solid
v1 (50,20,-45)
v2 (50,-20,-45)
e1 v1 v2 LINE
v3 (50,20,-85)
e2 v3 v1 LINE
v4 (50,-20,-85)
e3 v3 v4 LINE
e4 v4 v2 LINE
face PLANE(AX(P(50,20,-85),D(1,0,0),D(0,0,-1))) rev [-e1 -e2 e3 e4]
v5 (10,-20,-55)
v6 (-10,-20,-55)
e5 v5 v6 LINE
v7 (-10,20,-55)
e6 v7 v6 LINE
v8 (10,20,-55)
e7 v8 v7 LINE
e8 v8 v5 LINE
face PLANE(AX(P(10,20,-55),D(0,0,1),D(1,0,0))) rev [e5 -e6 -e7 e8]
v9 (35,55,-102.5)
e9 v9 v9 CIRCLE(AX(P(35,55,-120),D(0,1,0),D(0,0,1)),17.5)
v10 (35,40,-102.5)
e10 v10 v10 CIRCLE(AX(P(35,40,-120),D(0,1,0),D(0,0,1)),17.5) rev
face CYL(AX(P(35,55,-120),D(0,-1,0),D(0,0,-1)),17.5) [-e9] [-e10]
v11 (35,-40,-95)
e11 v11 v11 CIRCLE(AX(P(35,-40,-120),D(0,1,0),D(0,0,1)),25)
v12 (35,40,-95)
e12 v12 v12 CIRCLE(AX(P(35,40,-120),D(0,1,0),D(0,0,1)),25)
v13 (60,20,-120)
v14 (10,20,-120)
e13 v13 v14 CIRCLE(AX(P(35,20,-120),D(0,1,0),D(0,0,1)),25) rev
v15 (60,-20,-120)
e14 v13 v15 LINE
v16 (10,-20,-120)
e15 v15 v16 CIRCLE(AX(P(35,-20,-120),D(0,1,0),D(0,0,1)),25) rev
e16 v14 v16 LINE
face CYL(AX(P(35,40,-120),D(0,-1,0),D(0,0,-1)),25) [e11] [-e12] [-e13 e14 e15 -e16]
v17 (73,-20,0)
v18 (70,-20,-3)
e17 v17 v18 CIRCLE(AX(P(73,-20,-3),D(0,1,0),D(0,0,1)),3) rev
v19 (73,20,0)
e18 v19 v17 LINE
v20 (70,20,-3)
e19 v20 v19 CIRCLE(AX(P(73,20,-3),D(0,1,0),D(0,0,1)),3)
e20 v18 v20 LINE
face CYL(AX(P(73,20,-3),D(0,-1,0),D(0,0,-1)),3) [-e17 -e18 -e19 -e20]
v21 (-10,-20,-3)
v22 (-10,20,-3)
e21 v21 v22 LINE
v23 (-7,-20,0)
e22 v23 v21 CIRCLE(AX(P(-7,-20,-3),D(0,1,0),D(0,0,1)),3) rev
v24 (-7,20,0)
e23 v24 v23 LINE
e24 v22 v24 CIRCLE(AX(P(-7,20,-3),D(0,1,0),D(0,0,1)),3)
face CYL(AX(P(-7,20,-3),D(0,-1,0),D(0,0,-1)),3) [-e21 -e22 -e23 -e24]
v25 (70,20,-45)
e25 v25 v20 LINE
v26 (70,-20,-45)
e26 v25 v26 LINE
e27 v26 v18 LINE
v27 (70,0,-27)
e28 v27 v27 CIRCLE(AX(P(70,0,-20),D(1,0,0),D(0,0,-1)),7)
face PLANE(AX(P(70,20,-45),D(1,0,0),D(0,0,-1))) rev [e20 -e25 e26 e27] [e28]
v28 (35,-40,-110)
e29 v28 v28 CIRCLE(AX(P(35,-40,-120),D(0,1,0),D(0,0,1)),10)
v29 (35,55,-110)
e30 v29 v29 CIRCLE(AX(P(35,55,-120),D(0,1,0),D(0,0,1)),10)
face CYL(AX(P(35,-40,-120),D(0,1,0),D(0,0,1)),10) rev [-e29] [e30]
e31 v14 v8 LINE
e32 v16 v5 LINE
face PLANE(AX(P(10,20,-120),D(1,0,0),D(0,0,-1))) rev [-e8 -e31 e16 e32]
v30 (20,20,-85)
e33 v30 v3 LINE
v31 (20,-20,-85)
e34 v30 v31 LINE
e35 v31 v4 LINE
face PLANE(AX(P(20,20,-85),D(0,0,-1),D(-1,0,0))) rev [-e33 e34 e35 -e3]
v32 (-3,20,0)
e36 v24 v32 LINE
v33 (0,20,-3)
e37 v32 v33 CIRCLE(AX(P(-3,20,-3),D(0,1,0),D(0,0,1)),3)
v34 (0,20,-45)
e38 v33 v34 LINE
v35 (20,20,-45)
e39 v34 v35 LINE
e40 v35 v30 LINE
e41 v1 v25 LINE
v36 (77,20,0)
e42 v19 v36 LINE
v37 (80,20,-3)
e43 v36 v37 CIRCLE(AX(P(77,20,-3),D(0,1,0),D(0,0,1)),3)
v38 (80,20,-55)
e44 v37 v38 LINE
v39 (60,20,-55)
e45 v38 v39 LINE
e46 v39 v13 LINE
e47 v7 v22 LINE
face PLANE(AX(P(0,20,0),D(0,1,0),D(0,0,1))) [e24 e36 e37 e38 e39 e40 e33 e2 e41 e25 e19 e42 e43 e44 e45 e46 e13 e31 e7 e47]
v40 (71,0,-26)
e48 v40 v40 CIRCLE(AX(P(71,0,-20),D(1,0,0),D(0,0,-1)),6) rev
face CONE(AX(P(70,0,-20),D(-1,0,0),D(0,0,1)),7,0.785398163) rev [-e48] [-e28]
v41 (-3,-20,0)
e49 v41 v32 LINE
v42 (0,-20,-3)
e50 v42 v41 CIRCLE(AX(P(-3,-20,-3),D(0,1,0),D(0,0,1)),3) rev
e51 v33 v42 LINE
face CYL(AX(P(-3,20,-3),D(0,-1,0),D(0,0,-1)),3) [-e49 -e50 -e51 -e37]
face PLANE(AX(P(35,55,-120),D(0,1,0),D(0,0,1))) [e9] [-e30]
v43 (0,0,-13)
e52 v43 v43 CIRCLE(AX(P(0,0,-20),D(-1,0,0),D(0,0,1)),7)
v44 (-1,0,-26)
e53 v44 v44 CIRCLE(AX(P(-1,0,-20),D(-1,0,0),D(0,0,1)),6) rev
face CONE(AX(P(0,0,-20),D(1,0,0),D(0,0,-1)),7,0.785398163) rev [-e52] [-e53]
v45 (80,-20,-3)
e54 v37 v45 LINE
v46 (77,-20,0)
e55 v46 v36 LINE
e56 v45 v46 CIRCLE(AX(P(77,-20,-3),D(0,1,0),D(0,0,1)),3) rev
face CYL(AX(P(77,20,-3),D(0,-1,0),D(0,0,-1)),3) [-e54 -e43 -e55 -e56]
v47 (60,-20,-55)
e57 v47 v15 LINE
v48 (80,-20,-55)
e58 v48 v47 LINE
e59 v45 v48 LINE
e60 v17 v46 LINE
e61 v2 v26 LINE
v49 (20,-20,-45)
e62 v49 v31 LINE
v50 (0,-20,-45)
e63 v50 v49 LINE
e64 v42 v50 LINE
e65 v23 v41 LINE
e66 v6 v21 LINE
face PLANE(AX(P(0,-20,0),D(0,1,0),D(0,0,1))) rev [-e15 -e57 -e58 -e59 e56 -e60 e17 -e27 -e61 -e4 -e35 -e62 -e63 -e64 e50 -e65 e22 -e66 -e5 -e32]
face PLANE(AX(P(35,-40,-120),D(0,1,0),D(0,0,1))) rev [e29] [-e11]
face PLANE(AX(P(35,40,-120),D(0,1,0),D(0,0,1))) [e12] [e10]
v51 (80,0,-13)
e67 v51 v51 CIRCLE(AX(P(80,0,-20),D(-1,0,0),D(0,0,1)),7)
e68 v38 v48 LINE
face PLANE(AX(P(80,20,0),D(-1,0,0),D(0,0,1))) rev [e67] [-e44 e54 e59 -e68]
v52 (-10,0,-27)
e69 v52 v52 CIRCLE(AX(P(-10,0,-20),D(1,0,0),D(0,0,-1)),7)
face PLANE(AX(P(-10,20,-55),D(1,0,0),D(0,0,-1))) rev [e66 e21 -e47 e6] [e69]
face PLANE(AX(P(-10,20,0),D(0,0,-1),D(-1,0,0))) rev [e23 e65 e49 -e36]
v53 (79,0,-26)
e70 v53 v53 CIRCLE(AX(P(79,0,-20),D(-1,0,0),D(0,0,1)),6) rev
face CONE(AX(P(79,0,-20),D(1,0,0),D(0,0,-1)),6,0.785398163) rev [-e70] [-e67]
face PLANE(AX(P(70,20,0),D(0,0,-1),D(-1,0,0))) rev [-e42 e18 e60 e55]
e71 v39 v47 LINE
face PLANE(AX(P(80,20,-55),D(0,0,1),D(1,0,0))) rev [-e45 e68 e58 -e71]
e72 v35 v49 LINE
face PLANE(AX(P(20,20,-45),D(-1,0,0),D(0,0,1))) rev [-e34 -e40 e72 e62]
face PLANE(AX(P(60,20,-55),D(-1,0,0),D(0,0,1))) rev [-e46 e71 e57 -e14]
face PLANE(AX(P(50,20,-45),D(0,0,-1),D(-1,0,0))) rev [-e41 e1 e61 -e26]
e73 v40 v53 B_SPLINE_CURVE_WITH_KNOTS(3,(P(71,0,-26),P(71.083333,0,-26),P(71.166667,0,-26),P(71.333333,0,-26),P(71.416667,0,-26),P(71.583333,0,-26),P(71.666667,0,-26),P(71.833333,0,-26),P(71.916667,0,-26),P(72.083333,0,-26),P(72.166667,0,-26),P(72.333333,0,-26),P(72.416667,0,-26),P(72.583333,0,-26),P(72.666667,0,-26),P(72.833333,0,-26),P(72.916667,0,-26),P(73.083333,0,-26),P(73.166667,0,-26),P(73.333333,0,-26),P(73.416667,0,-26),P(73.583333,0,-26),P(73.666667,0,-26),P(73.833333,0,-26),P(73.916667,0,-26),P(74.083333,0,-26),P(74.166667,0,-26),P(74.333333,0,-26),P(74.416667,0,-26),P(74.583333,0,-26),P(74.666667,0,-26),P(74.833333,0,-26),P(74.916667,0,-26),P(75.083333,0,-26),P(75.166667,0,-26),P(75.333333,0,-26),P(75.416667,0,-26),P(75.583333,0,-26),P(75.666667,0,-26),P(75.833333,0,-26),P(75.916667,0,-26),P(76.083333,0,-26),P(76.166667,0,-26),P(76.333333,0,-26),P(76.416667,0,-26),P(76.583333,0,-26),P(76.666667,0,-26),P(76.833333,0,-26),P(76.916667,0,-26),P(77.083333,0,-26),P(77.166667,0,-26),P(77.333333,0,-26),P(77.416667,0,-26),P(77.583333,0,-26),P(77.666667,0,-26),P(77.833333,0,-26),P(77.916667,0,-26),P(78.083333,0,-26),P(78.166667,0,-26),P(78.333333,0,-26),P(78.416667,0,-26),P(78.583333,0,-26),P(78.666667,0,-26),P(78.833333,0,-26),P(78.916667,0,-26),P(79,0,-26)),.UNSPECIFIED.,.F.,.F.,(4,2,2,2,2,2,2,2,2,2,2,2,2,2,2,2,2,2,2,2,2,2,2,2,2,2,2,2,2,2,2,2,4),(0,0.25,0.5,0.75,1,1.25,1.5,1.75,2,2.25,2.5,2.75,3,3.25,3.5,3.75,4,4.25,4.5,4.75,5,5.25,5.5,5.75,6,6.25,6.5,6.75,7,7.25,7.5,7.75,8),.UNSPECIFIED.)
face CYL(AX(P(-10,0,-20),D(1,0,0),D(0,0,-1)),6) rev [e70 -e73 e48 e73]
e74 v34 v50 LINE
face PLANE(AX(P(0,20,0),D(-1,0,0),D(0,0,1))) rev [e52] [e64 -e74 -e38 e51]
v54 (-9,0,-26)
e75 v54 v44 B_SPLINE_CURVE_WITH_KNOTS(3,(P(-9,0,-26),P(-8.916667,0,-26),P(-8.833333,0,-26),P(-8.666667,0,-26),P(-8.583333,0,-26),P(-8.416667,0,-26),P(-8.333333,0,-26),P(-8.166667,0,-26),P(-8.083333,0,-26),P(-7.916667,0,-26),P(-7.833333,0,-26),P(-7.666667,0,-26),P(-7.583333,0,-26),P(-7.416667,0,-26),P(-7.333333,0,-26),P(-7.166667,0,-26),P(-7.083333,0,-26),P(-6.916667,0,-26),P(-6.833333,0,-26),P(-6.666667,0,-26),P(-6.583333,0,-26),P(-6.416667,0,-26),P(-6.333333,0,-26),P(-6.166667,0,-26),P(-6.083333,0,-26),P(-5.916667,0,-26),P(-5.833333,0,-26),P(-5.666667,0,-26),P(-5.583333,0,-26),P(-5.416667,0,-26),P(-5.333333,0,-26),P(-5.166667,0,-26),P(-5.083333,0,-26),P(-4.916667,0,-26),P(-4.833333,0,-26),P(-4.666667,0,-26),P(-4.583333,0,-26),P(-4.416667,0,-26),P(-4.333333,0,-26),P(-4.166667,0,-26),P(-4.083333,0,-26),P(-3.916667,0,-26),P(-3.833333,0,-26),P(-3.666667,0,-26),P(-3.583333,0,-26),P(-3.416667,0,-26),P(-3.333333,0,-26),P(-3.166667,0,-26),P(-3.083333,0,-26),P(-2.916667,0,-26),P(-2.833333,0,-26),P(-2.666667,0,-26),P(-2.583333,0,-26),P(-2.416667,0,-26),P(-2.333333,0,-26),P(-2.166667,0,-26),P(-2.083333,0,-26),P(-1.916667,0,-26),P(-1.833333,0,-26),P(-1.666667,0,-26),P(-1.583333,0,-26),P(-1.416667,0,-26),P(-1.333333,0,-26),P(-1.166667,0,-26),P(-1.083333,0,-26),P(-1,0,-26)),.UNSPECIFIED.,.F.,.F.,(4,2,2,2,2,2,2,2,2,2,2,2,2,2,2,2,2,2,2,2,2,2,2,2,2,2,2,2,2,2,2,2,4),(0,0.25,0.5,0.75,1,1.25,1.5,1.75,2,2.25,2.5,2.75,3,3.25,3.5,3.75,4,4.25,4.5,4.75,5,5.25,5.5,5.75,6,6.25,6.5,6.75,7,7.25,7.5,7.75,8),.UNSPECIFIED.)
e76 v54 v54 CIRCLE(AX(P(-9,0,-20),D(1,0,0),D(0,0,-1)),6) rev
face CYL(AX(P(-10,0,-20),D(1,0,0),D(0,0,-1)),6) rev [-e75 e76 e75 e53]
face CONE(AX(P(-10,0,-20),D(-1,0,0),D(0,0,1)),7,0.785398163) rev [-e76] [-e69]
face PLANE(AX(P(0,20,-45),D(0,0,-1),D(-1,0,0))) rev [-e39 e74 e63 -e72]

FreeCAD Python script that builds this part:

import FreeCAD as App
import Part
import Sketcher


def edges_at(feature, points):
    """Names of the edges that pass closest to the given points."""
    edges = feature.Shape.Edges
    near = lambda p: min(range(len(edges)), key=lambda i: edges[i].distToShape(Part.Vertex(*p))[0])
    return sorted({f"Edge{near(p) + 1}" for p in points})

doc = App.newDocument("Part")
body = doc.addObject("PartDesign::Body", "Body")

# Sketch on XZ plane
sketch1 = doc.addObject("Sketcher::SketchObject", "Sketch")
body.addObject(sketch1)
sketch1.AttachmentSupport = (doc.XZ_Plane, [""])
sketch1.MapMode = "FlatFace"
sketch1.addGeometry(Part.LineSegment(App.Vector(0, 0, 0), App.Vector(0, -45, 0)), False)
sketch1.addGeometry(Part.LineSegment(App.Vector(0, -45, 0), App.Vector(20, -45, 0)), False)
sketch1.addGeometry(Part.LineSegment(App.Vector(20, -45, 0), App.Vector(20, -85, 0)), False)
sketch1.addGeometry(Part.LineSegment(App.Vector(20, -85, 0), App.Vector(50, -85, 0)), False)
sketch1.addGeometry(Part.LineSegment(App.Vector(50, -85, 0), App.Vector(50, -45, 0)), False)
sketch1.addGeometry(Part.LineSegment(App.Vector(50, -45, 0), App.Vector(70, -45, 0)), False)
sketch1.addGeometry(Part.LineSegment(App.Vector(70, -45, 0), App.Vector(70, 0, 0)), False)
sketch1.addGeometry(Part.LineSegment(App.Vector(70, 0, 0), App.Vector(80, 0, 0)), False)
sketch1.addGeometry(Part.LineSegment(App.Vector(80, 0, 0), App.Vector(80, -55, 0)), False)
sketch1.addGeometry(Part.LineSegment(App.Vector(80, -55, 0), App.Vector(60, -55, 0)), False)
sketch1.addGeometry(Part.LineSegment(App.Vector(60, -55, 0), App.Vector(60, -120, 0)), False)
sketch1.addGeometry(Part.LineSegment(App.Vector(60, -120, 0), App.Vector(10, -120, 0)), False)
sketch1.addGeometry(Part.LineSegment(App.Vector(10, -120, 0), App.Vector(10, -55, 0)), False)
sketch1.addGeometry(Part.LineSegment(App.Vector(10, -55, 0), App.Vector(-10, -55, 0)), False)
sketch1.addGeometry(Part.LineSegment(App.Vector(-10, -55, 0), App.Vector(-10, 0, 0)), False)
sketch1.addGeometry(Part.LineSegment(App.Vector(-10, 0, 0), App.Vector(0, 0, 0)), False)
sketch1.addConstraint(Sketcher.Constraint("Coincident", 0, 2, 1, 1))
sketch1.addConstraint(Sketcher.Constraint("Coincident", 1, 2, 2, 1))
sketch1.addConstraint(Sketcher.Constraint("Coincident", 2, 2, 3, 1))
sketch1.addConstraint(Sketcher.Constraint("Coincident", 3, 2, 4, 1))
sketch1.addConstraint(Sketcher.Constraint("Coincident", 4, 2, 5, 1))
sketch1.addConstraint(Sketcher.Constraint("Coincident", 5, 2, 6, 1))
sketch1.addConstraint(Sketcher.Constraint("Coincident", 6, 2, 7, 1))
sketch1.addConstraint(Sketcher.Constraint("Coincident", 7, 2, 8, 1))
sketch1.addConstraint(Sketcher.Constraint("Coincident", 8, 2, 9, 1))
sketch1.addConstraint(Sketcher.Constraint("Coincident", 9, 2, 10, 1))
sketch1.addConstraint(Sketcher.Constraint("Coincident", 10, 2, 11, 1))
sketch1.addConstraint(Sketcher.Constraint("Coincident", 11, 2, 12, 1))
sketch1.addConstraint(Sketcher.Constraint("Coincident", 12, 2, 13, 1))
sketch1.addConstraint(Sketcher.Constraint("Coincident", 13, 2, 14, 1))
sketch1.addConstraint(Sketcher.Constraint("Coincident", 14, 2, 15, 1))
sketch1.addConstraint(Sketcher.Constraint("Coincident", 15, 2, 0, 1))
sketch1.addConstraint(Sketcher.Constraint("Vertical", 0))
sketch1.addConstraint(Sketcher.Constraint("Horizontal", 1))
sketch1.addConstraint(Sketcher.Constraint("Vertical", 2))
sketch1.addConstraint(Sketcher.Constraint("Horizontal", 3))
sketch1.addConstraint(Sketcher.Constraint("Vertical", 4))
sketch1.addConstraint(Sketcher.Constraint("Horizontal", 5))
sketch1.addConstraint(Sketcher.Constraint("Vertical", 6))
sketch1.addConstraint(Sketcher.Constraint("Horizontal", 7))
sketch1.addConstraint(Sketcher.Constraint("Vertical", 8))
sketch1.addConstraint(Sketcher.Constraint("Horizontal", 9))
sketch1.addConstraint(Sketcher.Constraint("Vertical", 10))
sketch1.addConstraint(Sketcher.Constraint("Horizontal", 11))
sketch1.addConstraint(Sketcher.Constraint("Vertical", 12))
sketch1.addConstraint(Sketcher.Constraint("Horizontal", 13))
sketch1.addConstraint(Sketcher.Constraint("Vertical", 14))
sketch1.addConstraint(Sketcher.Constraint("Horizontal", 15))
sketch1.addConstraint(Sketcher.Constraint("Coincident", 15, 2, -1, 1))
sketch1.addConstraint(Sketcher.Constraint("PointOnObject", 6, 2, -1))
sketch1.addConstraint(Sketcher.Constraint("Horizontal", 1, 2, 4, 2))
sketch1.addConstraint(Sketcher.Constraint("Horizontal", 9, 2, 12, 2))
sketch1.addConstraint(Sketcher.Constraint("Equal", 1, 5))
sketch1.addConstraint(Sketcher.Constraint("Equal", 5, 9))
sketch1.addConstraint(Sketcher.Constraint("Equal", 9, 13))
sketch1.addConstraint(Sketcher.Constraint("Equal", 7, 15))
sketch1.addConstraint(Sketcher.Constraint("DistanceX", 1, 1, 1, 2, 20.0))
sketch1.addConstraint(Sketcher.Constraint("DistanceX", 3, 1, 3, 2, 30.0))
sketch1.addConstraint(Sketcher.Constraint("DistanceX", 7, 1, 7, 2, 10.0))
sketch1.addConstraint(Sketcher.Constraint("DistanceY", 0, 2, 0, 1, 45.0))
sketch1.addConstraint(Sketcher.Constraint("DistanceY", 2, 2, 2, 1, 40.0))
sketch1.addConstraint(Sketcher.Constraint("DistanceY", 8, 2, 8, 1, 55.0))
sketch1.addConstraint(Sketcher.Constraint("DistanceY", 10, 2, 10, 1, 65.0))
pad1 = doc.addObject("PartDesign::Pad", "Pad")
body.addObject(pad1)
pad1.Profile = sketch1
pad1.Length = 40
pad1.Midplane = True
doc.recompute()

fillet = doc.addObject("PartDesign::Fillet", "Fillet")
body.addObject(fillet)
fillet.Base = (pad1, edges_at(pad1, [
    (-10, 0, 0),
    (80, 0, 0),
    (70, 0, 0),
    (0, 0, 0),
]))
fillet.Radius = 3

# Sketch on YZ plane
sketch2 = doc.addObject("Sketcher::SketchObject", "Sketch001")
body.addObject(sketch2)
sketch2.AttachmentSupport = (doc.YZ_Plane, [""])
sketch2.MapMode = "FlatFace"
sketch2.AttachmentOffset = App.Placement(App.Vector(0, 0, 80), App.Rotation())
sketch2.addGeometry(Part.Circle(App.Vector(0, -20, 0), App.Vector(0, 0, 1), 6), False)
sketch2.addConstraint(Sketcher.Constraint("PointOnObject", 0, 3, -2))
sketch2.addConstraint(Sketcher.Constraint("Diameter", 0, 12.0))
sketch2.addConstraint(Sketcher.Constraint("DistanceY", 0, 3, -1, 1, 20.0))
pocket1 = doc.addObject("PartDesign::Pocket", "Pocket")
body.addObject(pocket1)
pocket1.Profile = sketch2
pocket1.Type = "ThroughAll"

# Sketch on XZ plane
sketch3 = doc.addObject("Sketcher::SketchObject", "Sketch002")
body.addObject(sketch3)
sketch3.AttachmentSupport = (doc.XZ_Plane, [""])
sketch3.MapMode = "FlatFace"
sketch3.addGeometry(Part.Circle(App.Vector(35, -120, 0), App.Vector(0, 0, 1), 25), False)
sketch3.addConstraint(Sketcher.Constraint("Diameter", 0, 50.0))
sketch3.addConstraint(Sketcher.Constraint("DistanceX", -1, 1, 0, 3, 35.0))
sketch3.addConstraint(Sketcher.Constraint("DistanceY", 0, 3, -1, 1, 120.0))
pad2 = doc.addObject("PartDesign::Pad", "Pad001")
body.addObject(pad2)
pad2.Profile = sketch3
pad2.Length = 80
pad2.Midplane = True

# Sketch on XZ plane
sketch4 = doc.addObject("Sketcher::SketchObject", "Sketch003")
body.addObject(sketch4)
sketch4.AttachmentSupport = (doc.XZ_Plane, [""])
sketch4.MapMode = "FlatFace"
sketch4.AttachmentOffset = App.Placement(App.Vector(0, 0, -40), App.Rotation())
sketch4.addGeometry(Part.Circle(App.Vector(35, -120, 0), App.Vector(0, 0, 1), 18), False)
sketch4.addConstraint(Sketcher.Constraint("Diameter", 0, 35.0))
sketch4.addConstraint(Sketcher.Constraint("DistanceX", -1, 1, 0, 3, 35.0))
sketch4.addConstraint(Sketcher.Constraint("DistanceY", 0, 3, -1, 1, 120.0))
pad3 = doc.addObject("PartDesign::Pad", "Pad002")
body.addObject(pad3)
pad3.Profile = sketch4
pad3.Length = 30
pad3.Midplane = True

# Sketch on XZ plane
sketch5 = doc.addObject("Sketcher::SketchObject", "Sketch004")
body.addObject(sketch5)
sketch5.AttachmentSupport = (doc.XZ_Plane, [""])
sketch5.MapMode = "FlatFace"
sketch5.AttachmentOffset = App.Placement(App.Vector(0, 0, -55), App.Rotation())
sketch5.addGeometry(Part.Circle(App.Vector(35, -120, 0), App.Vector(0, 0, 1), 10), False)
sketch5.addConstraint(Sketcher.Constraint("Diameter", 0, 20.0))
sketch5.addConstraint(Sketcher.Constraint("DistanceX", -1, 1, 0, 3, 35.0))
sketch5.addConstraint(Sketcher.Constraint("DistanceY", 0, 3, -1, 1, 120.0))
pocket2 = doc.addObject("PartDesign::Pocket", "Pocket001")
body.addObject(pocket2)
pocket2.Profile = sketch5
pocket2.Type = "ThroughAll"
pocket2.Reversed = True
doc.recompute()

chamfer = doc.addObject("PartDesign::Chamfer", "Chamfer")
body.addObject(chamfer)
chamfer.Base = (pocket2, edges_at(pocket2, [
    (-10, 0, -14),
    (0, 0, -14),
    (70, 0, -14),
    (80, 0, -14),
]))
chamfer.Size = 1

doc.recompute()
